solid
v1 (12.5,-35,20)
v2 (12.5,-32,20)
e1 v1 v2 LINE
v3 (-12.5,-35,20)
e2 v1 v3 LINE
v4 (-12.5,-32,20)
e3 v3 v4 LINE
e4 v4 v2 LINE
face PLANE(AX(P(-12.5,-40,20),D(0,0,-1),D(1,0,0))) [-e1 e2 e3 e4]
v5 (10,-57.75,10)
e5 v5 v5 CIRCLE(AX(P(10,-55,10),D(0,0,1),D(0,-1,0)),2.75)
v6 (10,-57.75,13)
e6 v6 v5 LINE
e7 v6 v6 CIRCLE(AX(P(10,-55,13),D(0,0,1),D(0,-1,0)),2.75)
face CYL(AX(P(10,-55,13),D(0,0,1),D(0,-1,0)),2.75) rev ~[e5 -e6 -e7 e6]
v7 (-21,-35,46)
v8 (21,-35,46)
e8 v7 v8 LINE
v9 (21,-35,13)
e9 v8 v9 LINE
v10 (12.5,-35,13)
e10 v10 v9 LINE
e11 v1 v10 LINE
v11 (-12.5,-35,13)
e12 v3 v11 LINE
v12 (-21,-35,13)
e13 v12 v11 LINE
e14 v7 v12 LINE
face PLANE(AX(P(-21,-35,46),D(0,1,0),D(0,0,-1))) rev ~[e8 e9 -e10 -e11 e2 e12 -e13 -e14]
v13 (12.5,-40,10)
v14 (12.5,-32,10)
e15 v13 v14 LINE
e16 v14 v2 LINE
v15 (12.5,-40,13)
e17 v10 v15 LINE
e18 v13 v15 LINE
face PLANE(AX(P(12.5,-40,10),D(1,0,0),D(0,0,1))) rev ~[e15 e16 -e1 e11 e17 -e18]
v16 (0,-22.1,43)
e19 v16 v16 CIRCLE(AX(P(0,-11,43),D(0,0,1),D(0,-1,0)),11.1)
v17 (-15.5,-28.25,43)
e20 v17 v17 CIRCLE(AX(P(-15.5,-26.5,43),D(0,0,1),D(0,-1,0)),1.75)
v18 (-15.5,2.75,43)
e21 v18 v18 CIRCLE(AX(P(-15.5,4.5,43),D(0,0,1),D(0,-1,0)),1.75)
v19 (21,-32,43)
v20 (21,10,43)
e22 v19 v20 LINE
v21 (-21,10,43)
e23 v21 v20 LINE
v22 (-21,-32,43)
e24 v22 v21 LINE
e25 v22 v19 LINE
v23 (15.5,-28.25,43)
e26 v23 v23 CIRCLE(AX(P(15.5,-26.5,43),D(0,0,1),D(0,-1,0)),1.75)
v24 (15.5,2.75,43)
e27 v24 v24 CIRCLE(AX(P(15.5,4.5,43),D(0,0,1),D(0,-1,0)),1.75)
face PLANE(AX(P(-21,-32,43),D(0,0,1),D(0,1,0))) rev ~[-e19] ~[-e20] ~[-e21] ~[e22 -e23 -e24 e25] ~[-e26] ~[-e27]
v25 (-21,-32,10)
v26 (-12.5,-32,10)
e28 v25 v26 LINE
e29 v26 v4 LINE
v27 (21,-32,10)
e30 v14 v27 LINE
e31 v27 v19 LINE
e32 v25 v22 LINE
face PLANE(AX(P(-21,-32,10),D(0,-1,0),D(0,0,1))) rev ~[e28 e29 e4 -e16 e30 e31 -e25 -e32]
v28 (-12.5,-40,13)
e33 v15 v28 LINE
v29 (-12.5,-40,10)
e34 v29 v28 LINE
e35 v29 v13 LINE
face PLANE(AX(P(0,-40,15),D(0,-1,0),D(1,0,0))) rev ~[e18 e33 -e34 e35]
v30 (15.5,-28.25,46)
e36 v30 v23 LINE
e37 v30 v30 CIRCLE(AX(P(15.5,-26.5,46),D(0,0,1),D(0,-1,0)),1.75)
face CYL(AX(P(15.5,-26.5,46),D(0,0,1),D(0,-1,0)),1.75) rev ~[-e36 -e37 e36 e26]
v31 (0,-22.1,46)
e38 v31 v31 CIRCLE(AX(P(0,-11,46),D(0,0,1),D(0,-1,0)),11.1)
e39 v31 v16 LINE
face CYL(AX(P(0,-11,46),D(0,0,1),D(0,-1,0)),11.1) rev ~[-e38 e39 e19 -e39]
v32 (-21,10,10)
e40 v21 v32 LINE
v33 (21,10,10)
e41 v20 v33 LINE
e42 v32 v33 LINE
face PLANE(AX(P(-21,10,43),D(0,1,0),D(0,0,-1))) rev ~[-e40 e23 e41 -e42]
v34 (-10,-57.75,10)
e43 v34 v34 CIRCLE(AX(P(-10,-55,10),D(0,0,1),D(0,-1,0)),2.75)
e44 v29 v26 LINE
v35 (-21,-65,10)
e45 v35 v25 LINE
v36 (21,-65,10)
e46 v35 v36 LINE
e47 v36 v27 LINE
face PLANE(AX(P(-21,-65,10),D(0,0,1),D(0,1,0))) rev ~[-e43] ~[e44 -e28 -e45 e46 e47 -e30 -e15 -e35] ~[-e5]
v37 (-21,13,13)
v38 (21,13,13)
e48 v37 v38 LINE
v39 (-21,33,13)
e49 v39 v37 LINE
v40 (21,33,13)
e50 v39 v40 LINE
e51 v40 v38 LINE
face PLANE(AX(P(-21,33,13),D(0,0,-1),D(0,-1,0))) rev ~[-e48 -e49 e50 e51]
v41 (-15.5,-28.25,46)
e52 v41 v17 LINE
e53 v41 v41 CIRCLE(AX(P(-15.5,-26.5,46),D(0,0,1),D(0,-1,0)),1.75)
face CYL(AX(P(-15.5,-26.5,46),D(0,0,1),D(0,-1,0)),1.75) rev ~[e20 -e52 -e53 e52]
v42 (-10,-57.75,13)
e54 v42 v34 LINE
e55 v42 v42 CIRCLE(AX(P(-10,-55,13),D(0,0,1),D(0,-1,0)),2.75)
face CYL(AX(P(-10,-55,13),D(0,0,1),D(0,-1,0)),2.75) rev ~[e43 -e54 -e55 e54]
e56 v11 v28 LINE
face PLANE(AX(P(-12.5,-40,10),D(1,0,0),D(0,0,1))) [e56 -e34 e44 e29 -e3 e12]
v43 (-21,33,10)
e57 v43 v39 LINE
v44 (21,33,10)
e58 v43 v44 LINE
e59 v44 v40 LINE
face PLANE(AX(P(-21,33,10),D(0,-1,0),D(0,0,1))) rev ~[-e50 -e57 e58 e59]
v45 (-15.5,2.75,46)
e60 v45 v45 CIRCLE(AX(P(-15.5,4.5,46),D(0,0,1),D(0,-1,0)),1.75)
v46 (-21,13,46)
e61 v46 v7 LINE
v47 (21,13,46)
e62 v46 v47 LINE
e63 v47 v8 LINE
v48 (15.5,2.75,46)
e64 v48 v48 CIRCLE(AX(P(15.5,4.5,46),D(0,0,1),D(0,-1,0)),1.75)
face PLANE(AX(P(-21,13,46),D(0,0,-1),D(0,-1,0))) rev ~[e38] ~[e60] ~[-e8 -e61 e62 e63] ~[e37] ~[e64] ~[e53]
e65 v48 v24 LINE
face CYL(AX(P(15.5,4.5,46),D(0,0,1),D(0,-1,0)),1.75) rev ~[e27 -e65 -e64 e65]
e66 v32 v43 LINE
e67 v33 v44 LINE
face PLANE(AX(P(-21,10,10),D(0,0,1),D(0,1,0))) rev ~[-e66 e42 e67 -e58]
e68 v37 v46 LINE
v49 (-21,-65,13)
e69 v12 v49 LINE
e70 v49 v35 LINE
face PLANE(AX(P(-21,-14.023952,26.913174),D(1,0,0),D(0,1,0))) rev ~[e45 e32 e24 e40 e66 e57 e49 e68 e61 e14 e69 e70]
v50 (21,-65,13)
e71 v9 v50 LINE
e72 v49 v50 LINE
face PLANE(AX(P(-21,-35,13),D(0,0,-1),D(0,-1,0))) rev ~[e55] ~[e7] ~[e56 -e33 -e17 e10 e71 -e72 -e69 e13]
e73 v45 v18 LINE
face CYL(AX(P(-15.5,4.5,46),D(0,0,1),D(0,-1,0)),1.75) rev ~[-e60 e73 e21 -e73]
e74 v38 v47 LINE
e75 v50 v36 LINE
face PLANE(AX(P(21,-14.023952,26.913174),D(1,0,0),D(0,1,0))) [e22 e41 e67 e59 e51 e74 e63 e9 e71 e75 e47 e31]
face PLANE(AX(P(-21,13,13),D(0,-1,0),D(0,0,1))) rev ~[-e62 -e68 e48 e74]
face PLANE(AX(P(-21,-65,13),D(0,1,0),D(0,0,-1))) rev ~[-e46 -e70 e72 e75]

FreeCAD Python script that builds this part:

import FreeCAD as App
import Part
import Sketcher
from FreeCAD import Vector


def add_polygon(sketch, points):
    """Adds a closed chain of lines whose ends are joined by coincident constraints."""
    first, n = sketch.GeometryCount, len(points)
    for a, b in zip(points, points[1:] + points[:1]):
        sketch.addGeometry(Part.LineSegment(App.Vector(*a, 0), App.Vector(*b, 0)), False)
    for i in range(n):
        sketch.addConstraint(Sketcher.Constraint("Coincident", first + i, 2, first + (i + 1) % n, 1))

doc = App.newDocument("Part")
body = doc.addObject("PartDesign::Body", "Body")

# Sketch on YZ plane
sketch1 = body.newObject("Sketcher::SketchObject", "Sketch")
sketch1.AttachmentSupport = (doc.getObject("YZ_Plane"), [""])
sketch1.MapMode = "FlatFace"
add_polygon(sketch1, [(-32, 10), (-32, 43), (10, 43), (10, 10), (33, 10), (33, 13), (13, 13), (13, 46), (-35, 46), (-35, 13), (-65, 13), (-65, 10)])  # lines 0-11
sketch1.addConstraint([
    Sketcher.Constraint("Vertical", 0),
    Sketcher.Constraint("Horizontal", 1),
    Sketcher.Constraint("Vertical", 2),
    Sketcher.Constraint("Horizontal", 3),
    Sketcher.Constraint("Vertical", 4),
    Sketcher.Constraint("Horizontal", 5),
    Sketcher.Constraint("Vertical", 6),
    Sketcher.Constraint("Horizontal", 7),
    Sketcher.Constraint("Vertical", 8),
    Sketcher.Constraint("Horizontal", 9),
    Sketcher.Constraint("Vertical", 10),
    Sketcher.Constraint("Horizontal", 11),
    Sketcher.Constraint("Horizontal", 5, 2, 8, 2),
    Sketcher.Constraint("Horizontal", 3, 2, 10, 2),
    Sketcher.Constraint("Equal", 11, 0),
    Sketcher.Constraint("Equal", 2, 6),
    Sketcher.Constraint("DistanceX", 1, 1, 1, 2, 42.0),
    Sketcher.Constraint("DistanceX", 3, 1, 3, 2, 23.0),
    Sketcher.Constraint("DistanceX", 5, 2, 5, 1, 20.0),
    Sketcher.Constraint("DistanceX", 7, 2, 7, 1, 48.0),
    Sketcher.Constraint("DistanceX", 9, 2, 9, 1, 30.0),
    Sketcher.Constraint("DistanceY", 4, 1, 4, 2, 3.0),
    Sketcher.Constraint("DistanceX", 0, 2, -1, 1, 32.0),
    Sketcher.Constraint("DistanceY", -1, 1, 0, 2, 43.0),
])
pad1 = body.newObject("PartDesign::Pad", "Pad")
pad1.Profile = sketch1
pad1.Length = 42

# Sketch on XY plane
sketch2 = body.newObject("Sketcher::SketchObject", "Sketch001")
sketch2.AttachmentSupport = (doc.getObject("XY_Plane"), [""])
sketch2.MapMode = "FlatFace"
sketch2.AttachmentOffset = App.Placement(Vector(0, 0, 46), App.Rotation())
sketch2.addGeometry([
    Part.Circle(Vector(36.5, 4.5, 0), Vector(0, 0, 1), 1.8),  # 0
    Part.Circle(Vector(5.5, 4.5, 0), Vector(0, 0, 1), 1.8),  # 1
    Part.Circle(Vector(36.5, -26.5, 0), Vector(0, 0, 1), 1.8),  # 2
    Part.Circle(Vector(5.5, -26.5, 0), Vector(0, 0, 1), 1.8),  # 3
    Part.Circle(Vector(21, -11, 0), Vector(0, 0, 1), 11.1),  # 4
], False)
sketch2.addConstraint([
    Sketcher.Constraint("Equal", 0, 1),
    Sketcher.Constraint("Equal", 1, 2),
    Sketcher.Constraint("Equal", 2, 3),
    Sketcher.Constraint("Horizontal", 0, 3, 1, 3),
    Sketcher.Constraint("Horizontal", 2, 3, 3, 3),
    Sketcher.Constraint("Vertical", 0, 3, 2, 3),
    Sketcher.Constraint("Vertical", 1, 3, 3, 3),
    Sketcher.Constraint("Diameter", 0, 3.5),
    Sketcher.Constraint("Diameter", 4, 22.2),
    Sketcher.Constraint("DistanceX", -1, 1, 4, 3, 21.0),
    Sketcher.Constraint("DistanceY", 4, 3, -1, 1, 11.0),
    Sketcher.Constraint("DistanceX", 1, 3, 0, 3, 31.0),
    Sketcher.Constraint("DistanceY", 2, 3, 0, 3, 31.0),
    Sketcher.Constraint("DistanceX", -1, 1, 0, 3, 36.5),
    Sketcher.Constraint("DistanceY", -1, 1, 0, 3, 4.5),
])
pocket1 = body.newObject("PartDesign::Pocket", "Pocket")
pocket1.Profile = sketch2
pocket1.Type = "ThroughAll"

# Sketch on XY plane
sketch3 = body.newObject("Sketcher::SketchObject", "Sketch002")
sketch3.AttachmentSupport = (doc.getObject("XY_Plane"), [""])
sketch3.MapMode = "FlatFace"
sketch3.AttachmentOffset = App.Placement(Vector(0, 0, 13), App.Rotation())
sketch3.addGeometry([
    Part.Circle(Vector(31, -55, 0), Vector(0, 0, 1), 2.8),
    Part.Circle(Vector(11, -55, 0), Vector(0, 0, 1), 2.8),
], False)
sketch3.addConstraint([
    Sketcher.Constraint("Equal", 0, 1),
    Sketcher.Constraint("Horizontal", 0, 3, 1, 3),
    Sketcher.Constraint("Diameter", 0, 5.5),
    Sketcher.Constraint("DistanceX", -1, 1, 0, 3, 31.0),
    Sketcher.Constraint("DistanceY", 0, 3, -1, 1, 55.0),
    Sketcher.Constraint("DistanceX", -1, 1, 1, 3, 11.0),
])
pocket2 = body.newObject("PartDesign::Pocket", "Pocket001")
pocket2.Profile = sketch3
pocket2.Length = 25

# Sketch on XZ plane
sketch4 = body.newObject("Sketcher::SketchObject", "Sketch003")
sketch4.AttachmentSupport = (doc.getObject("XZ_Plane"), [""])
sketch4.MapMode = "FlatFace"
sketch4.AttachmentOffset = App.Placement(Vector(0, 0, 40), App.Rotation())
add_polygon(sketch4, [(8, 20), (8, 10), (34, 10), (34, 20)])  # lines 0-3
sketch4.addConstraint([
    Sketcher.Constraint("Vertical", 0),
    Sketcher.Constraint("Horizontal", 1),
    Sketcher.Constraint("Vertical", 2),
    Sketcher.Constraint("Horizontal", 3),
    Sketcher.Constraint("DistanceX", 1, 1, 1, 2, 25.0),
    Sketcher.Constraint("DistanceY", 0, 2, 0, 1, 10.0),
    Sketcher.Constraint("DistanceY", -1, 1, 0, 2, 10.0),
    Sketcher.Constraint("DistanceX", -1, 1, 0, 2, 8.5),
])
pocket3 = body.newObject("PartDesign::Pocket", "Pocket002")
pocket3.Profile = sketch4
pocket3.Length = 13
body2 = doc.addObject("PartDesign::Body", "Body001")
doc.recompute()

body.Placement = App.Placement(Vector(-21, 0, 0), App.Rotation(Vector(0, 0, 1), 0))
boolean = body2.newObject("PartDesign::Boolean", "Boolean")
boolean.Type = "Fuse"
boolean.addObjects([body])

doc.recompute()
